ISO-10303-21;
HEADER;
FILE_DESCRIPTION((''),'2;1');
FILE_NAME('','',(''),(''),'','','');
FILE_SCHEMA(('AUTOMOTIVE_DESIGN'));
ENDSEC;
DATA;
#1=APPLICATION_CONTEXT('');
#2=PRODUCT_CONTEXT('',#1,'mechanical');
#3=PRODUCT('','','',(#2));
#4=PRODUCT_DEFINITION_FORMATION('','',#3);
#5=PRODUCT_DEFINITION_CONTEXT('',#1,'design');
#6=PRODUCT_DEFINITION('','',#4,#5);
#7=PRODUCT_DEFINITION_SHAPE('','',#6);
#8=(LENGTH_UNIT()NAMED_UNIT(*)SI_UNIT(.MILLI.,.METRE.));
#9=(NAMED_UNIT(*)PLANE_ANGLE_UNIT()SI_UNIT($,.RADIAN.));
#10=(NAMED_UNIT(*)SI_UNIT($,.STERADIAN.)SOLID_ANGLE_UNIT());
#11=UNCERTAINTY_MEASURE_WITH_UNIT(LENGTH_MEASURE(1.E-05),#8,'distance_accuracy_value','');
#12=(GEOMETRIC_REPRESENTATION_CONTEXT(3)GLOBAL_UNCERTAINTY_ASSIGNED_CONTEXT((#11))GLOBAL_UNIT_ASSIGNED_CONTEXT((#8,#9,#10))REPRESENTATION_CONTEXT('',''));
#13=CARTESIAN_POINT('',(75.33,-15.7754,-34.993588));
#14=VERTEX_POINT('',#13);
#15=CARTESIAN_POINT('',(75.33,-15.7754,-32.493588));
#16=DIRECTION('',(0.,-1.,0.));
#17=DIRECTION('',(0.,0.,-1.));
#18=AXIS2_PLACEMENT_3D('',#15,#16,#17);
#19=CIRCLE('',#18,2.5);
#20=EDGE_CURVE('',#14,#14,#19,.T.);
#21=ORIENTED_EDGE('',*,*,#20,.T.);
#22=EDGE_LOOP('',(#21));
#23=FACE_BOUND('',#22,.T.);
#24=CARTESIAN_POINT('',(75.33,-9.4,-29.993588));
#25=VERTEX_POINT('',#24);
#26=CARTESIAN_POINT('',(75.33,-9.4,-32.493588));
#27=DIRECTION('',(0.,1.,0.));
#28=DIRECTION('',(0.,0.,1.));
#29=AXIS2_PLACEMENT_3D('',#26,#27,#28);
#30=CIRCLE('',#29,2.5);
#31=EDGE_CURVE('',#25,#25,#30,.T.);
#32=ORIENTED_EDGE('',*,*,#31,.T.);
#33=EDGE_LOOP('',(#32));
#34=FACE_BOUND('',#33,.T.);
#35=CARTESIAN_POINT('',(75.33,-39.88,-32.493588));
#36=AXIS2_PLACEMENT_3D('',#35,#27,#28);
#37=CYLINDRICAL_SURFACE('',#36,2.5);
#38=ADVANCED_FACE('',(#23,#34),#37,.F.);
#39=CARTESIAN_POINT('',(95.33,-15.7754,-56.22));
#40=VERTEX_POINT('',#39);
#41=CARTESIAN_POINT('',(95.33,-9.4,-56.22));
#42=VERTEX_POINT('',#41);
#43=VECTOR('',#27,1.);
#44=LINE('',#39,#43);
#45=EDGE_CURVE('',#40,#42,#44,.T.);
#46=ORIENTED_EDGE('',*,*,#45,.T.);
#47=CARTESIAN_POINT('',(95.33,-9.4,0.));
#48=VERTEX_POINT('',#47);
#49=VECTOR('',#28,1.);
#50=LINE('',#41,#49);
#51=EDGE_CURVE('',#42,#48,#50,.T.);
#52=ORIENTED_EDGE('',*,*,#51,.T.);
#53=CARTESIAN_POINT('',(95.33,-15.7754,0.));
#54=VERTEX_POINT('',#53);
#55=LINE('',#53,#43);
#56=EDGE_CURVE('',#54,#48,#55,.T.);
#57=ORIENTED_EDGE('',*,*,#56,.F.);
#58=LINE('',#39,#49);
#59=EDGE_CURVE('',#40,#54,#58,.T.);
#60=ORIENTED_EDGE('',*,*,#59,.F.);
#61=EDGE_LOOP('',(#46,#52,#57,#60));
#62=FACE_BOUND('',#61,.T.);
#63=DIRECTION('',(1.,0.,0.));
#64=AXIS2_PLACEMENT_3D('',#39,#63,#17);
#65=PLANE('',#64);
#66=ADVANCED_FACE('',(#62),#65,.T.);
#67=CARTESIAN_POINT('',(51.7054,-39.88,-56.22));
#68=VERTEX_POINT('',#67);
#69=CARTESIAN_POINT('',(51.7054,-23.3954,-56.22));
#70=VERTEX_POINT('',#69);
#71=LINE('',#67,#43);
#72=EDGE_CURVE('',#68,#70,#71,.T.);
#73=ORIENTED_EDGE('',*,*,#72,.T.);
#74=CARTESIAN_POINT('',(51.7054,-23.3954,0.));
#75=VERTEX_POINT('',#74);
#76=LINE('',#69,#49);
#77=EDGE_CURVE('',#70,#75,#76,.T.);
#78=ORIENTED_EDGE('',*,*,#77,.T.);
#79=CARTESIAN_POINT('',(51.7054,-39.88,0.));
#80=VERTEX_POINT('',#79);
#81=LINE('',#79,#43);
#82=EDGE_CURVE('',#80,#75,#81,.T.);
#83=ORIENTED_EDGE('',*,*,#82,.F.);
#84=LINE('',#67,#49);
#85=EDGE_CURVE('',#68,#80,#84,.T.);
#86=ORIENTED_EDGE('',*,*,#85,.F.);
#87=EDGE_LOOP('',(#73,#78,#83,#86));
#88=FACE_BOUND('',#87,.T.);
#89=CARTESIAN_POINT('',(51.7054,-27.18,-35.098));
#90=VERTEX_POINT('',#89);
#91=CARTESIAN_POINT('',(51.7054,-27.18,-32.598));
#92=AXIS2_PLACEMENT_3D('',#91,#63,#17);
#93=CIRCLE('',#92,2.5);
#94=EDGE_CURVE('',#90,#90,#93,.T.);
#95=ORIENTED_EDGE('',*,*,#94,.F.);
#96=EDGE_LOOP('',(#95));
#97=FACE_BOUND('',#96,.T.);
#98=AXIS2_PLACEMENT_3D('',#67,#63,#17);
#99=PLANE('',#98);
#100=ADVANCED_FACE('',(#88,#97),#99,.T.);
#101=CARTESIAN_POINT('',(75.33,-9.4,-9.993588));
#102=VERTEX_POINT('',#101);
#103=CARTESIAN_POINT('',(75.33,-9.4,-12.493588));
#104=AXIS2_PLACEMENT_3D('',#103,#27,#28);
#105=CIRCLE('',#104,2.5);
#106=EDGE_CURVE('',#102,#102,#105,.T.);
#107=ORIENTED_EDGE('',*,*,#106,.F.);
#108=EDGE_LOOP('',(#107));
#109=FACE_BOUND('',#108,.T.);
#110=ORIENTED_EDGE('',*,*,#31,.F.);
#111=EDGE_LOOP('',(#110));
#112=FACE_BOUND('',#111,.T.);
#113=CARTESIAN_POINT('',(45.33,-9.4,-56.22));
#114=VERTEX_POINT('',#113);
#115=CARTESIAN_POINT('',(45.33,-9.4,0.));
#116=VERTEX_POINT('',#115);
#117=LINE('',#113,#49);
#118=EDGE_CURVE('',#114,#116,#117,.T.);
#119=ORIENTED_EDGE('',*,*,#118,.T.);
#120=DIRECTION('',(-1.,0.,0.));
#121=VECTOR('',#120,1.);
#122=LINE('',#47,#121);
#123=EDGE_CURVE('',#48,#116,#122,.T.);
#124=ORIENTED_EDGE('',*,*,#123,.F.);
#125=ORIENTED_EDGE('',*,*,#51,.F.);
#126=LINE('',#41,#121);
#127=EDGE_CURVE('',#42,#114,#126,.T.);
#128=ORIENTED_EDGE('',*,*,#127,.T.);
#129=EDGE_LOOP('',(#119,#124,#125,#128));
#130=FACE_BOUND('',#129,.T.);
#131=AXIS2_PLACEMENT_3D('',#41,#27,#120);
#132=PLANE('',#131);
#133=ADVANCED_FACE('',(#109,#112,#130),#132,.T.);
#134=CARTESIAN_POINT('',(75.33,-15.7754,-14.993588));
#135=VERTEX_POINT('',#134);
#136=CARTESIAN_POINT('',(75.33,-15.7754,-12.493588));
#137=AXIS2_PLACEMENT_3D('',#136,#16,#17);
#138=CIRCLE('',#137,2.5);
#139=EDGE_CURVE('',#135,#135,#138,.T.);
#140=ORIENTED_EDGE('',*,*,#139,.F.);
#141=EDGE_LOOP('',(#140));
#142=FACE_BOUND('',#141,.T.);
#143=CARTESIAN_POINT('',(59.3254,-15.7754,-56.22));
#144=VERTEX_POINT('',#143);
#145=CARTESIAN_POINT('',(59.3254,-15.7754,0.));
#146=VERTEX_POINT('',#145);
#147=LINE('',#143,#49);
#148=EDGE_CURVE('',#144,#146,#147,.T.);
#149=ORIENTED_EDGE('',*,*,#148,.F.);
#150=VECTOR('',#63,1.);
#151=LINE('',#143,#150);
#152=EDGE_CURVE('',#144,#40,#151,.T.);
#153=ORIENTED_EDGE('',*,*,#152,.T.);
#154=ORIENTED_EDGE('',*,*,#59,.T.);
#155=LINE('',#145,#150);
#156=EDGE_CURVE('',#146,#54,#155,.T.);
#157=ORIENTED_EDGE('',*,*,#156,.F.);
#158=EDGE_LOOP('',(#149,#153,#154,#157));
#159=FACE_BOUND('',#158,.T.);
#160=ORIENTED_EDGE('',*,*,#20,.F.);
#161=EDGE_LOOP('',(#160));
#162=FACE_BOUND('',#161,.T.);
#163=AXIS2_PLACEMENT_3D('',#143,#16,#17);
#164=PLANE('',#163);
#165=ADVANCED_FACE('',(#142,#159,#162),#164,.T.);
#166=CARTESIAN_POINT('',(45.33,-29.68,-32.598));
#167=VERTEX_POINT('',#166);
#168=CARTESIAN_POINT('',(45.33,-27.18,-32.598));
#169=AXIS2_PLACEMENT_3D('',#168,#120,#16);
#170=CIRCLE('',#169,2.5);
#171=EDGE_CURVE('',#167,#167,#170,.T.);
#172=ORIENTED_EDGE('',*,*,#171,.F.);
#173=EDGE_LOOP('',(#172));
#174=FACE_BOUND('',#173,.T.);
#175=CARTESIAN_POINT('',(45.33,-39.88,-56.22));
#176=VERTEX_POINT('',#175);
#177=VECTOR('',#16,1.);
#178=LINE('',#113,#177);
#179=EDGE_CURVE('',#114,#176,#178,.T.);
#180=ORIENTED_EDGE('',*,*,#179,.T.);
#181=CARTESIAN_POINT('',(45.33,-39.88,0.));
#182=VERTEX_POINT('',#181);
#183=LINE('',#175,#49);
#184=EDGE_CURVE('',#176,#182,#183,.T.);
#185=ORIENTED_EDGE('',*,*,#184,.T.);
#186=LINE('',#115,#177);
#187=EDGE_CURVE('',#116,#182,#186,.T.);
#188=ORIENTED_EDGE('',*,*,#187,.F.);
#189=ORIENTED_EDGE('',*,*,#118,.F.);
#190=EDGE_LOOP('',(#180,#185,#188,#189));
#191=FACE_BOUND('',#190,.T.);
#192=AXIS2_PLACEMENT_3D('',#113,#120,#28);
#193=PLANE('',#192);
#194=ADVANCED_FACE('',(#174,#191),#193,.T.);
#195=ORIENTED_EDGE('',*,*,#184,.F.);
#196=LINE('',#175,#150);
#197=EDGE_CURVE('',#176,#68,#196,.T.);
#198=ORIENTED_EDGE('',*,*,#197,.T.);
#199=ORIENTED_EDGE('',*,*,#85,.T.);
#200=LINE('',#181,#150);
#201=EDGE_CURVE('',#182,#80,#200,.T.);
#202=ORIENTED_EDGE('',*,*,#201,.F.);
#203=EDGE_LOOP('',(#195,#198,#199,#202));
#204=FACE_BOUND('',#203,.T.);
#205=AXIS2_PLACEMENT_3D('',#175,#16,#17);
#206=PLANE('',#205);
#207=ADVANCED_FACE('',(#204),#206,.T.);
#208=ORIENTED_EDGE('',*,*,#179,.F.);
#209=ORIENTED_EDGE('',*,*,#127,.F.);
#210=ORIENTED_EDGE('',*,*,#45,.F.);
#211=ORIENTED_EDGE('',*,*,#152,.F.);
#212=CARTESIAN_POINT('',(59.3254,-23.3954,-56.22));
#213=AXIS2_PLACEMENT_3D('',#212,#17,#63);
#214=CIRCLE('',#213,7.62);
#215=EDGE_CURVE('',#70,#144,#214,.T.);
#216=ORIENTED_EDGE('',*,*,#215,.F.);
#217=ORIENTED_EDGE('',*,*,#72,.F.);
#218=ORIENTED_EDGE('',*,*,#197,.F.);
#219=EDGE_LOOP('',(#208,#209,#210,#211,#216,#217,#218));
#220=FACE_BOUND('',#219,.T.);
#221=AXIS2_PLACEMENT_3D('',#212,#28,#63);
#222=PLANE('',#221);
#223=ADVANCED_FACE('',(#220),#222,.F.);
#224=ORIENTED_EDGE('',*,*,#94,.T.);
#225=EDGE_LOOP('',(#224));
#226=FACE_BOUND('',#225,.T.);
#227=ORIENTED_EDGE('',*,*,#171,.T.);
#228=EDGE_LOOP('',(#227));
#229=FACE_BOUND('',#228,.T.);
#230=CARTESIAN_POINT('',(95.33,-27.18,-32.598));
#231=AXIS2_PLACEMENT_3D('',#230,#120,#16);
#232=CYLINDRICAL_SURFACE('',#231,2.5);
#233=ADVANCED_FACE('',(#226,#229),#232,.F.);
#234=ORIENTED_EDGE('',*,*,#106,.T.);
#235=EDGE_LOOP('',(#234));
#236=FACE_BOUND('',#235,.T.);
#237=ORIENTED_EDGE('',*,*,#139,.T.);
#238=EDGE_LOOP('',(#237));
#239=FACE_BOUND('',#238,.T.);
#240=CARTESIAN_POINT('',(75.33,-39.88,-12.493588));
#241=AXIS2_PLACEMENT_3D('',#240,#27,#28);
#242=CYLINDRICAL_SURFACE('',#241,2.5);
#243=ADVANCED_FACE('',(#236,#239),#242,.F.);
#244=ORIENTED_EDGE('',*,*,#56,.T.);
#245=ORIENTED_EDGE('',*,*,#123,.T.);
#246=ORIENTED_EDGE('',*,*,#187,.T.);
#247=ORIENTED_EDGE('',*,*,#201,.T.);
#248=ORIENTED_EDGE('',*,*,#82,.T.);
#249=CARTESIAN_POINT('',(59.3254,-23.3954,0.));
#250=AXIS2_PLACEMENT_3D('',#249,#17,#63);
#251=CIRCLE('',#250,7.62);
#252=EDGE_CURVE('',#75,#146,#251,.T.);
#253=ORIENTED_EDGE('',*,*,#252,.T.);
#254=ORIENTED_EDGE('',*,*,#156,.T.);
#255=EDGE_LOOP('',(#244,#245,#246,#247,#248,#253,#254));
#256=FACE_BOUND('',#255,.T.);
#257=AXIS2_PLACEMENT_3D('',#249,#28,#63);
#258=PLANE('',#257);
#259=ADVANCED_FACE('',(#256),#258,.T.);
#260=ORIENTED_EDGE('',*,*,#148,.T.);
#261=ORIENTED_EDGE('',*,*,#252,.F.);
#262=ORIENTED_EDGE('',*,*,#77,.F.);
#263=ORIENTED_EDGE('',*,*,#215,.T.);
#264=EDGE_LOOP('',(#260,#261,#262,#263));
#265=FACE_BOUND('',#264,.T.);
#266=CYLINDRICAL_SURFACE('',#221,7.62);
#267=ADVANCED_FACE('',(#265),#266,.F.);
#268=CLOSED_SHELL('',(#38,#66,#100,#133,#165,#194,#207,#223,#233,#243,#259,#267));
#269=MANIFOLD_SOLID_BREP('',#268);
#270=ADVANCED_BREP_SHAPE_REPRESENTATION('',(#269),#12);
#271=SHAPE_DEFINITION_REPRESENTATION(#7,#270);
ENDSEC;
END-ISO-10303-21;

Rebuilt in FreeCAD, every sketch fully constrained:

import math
import FreeCAD as App
import Part
import Sketcher
Q = App.Units.Quantity

doc = App.newDocument("Part")
body = doc.addObject("PartDesign::Body", "Body")

# Sketch on XY plane
sketch1 = doc.addObject("Sketcher::SketchObject", "Sketch")
body.addObject(sketch1)
sketch1.AttachmentSupport = (doc.XY_Plane, [""])
sketch1.MapMode = "FlatFace"
sketch1.addGeometry([
    Part.LineSegment(App.Vector(45, -9, 0), App.Vector(45, -40, 0)),  # 0
    Part.LineSegment(App.Vector(45, -40, 0), App.Vector(52, -40, 0)),  # 1
    Part.LineSegment(App.Vector(52, -40, 0), App.Vector(52, -23, 0)),  # 2
    Part.ArcOfCircle(Part.Circle(App.Vector(59, -23, 0), App.Vector(0, 0, 1), 8), math.radians(90), math.radians(180)),  # 3
    Part.LineSegment(App.Vector(59, -16, 0), App.Vector(95, -16, 0)),  # 4
    Part.LineSegment(App.Vector(95, -16, 0), App.Vector(95, -9, 0)),  # 5
    Part.LineSegment(App.Vector(95, -9, 0), App.Vector(45, -9, 0)),  # 6
], False)
sketch1.addConstraint([
    Sketcher.Constraint("Coincident", 0, 2, 1, 1),
    Sketcher.Constraint("Coincident", 1, 2, 2, 1),
    Sketcher.Constraint("Tangent", 2, 2, 3, 2),
    Sketcher.Constraint("Tangent", 3, 1, 4, 1),
    Sketcher.Constraint("Coincident", 4, 2, 5, 1),
    Sketcher.Constraint("Coincident", 5, 2, 6, 1),
    Sketcher.Constraint("Coincident", 6, 2, 0, 1),
    Sketcher.Constraint("Vertical", 0),
    Sketcher.Constraint("Horizontal", 1),
    Sketcher.Constraint("Vertical", 2),
    Sketcher.Constraint("Horizontal", 4),
    Sketcher.Constraint("Vertical", 5),
    Sketcher.Constraint("Horizontal", 6),
    Sketcher.Constraint("Equal", 1, 5),
    Sketcher.Constraint("Radius", 3, Q("0.3 in")),
    Sketcher.Constraint("DistanceY", 0, 2, 0, 1, Q("1.2 in")),
    Sketcher.Constraint("DistanceX", 1, 1, 1, 2, Q("0.251 in")),
    Sketcher.Constraint("DistanceX", 4, 1, 4, 2, Q("36.0046 mm")),
    Sketcher.Constraint("DistanceX", -1, 1, 3, 3, Q("59.3254 mm")),
    Sketcher.Constraint("DistanceY", 3, 3, -1, 1, Q("23.3954 mm")),
])
pad1 = doc.addObject("PartDesign::Pad", "Pad")
body.addObject(pad1)
pad1.Profile = sketch1
pad1.Length = 56.22
pad1.Reversed = True

# Sketch on XZ plane
sketch2 = doc.addObject("Sketcher::SketchObject", "Sketch001")
body.addObject(sketch2)
sketch2.AttachmentSupport = (doc.XZ_Plane, [""])
sketch2.MapMode = "FlatFace"
sketch2.AttachmentOffset = App.Placement(App.Vector(0, 0, 9.4), App.Rotation())
sketch2.addGeometry([
    Part.Circle(App.Vector(75.3, -12.5, 0), App.Vector(0, 0, 1), 2.5),
    Part.Circle(App.Vector(75.3, -32.5, 0), App.Vector(0, 0, 1), 2.5),
], False)
sketch2.addConstraint([
    Sketcher.Constraint("Equal", 0, 1),
    Sketcher.Constraint("Vertical", 0, 3, 1, 3),
    Sketcher.Constraint("Diameter", 0, Q("5 mm")),
    Sketcher.Constraint("DistanceX", -1, 1, 0, 3, Q("75.33 mm")),
    Sketcher.Constraint("DistanceY", 1, 3, 0, 3, Q("20 mm")),
    Sketcher.Constraint("DistanceY", 0, 3, -1, 1, Q("12.493588 mm")),
])
pocket1 = doc.addObject("PartDesign::Pocket", "Pocket")
body.addObject(pocket1)
pocket1.Profile = sketch2
pocket1.Type = "ThroughAll"
pocket1.Reversed = True

# Sketch on YZ plane
sketch3 = doc.addObject("Sketcher::SketchObject", "Sketch002")
body.addObject(sketch3)
sketch3.AttachmentSupport = (doc.YZ_Plane, [""])
sketch3.MapMode = "FlatFace"
sketch3.AttachmentOffset = App.Placement(App.Vector(0, 0, 45.33), App.Rotation())
sketch3.addGeometry(Part.Circle(App.Vector(-27.2, -32.6, 0), App.Vector(0, 0, 1), 2.5), False)
sketch3.addConstraint([
    Sketcher.Constraint("Diameter", 0, Q("5 mm")),
    Sketcher.Constraint("DistanceX", 0, 3, -1, 1, Q("27.18 mm")),
    Sketcher.Constraint("DistanceY", 0, 3, -1, 1, Q("32.598 mm")),
])
pocket2 = doc.addObject("PartDesign::Pocket", "Pocket001")
body.addObject(pocket2)
pocket2.Profile = sketch3
pocket2.Type = "ThroughAll"
pocket2.Reversed = True

doc.recompute()
